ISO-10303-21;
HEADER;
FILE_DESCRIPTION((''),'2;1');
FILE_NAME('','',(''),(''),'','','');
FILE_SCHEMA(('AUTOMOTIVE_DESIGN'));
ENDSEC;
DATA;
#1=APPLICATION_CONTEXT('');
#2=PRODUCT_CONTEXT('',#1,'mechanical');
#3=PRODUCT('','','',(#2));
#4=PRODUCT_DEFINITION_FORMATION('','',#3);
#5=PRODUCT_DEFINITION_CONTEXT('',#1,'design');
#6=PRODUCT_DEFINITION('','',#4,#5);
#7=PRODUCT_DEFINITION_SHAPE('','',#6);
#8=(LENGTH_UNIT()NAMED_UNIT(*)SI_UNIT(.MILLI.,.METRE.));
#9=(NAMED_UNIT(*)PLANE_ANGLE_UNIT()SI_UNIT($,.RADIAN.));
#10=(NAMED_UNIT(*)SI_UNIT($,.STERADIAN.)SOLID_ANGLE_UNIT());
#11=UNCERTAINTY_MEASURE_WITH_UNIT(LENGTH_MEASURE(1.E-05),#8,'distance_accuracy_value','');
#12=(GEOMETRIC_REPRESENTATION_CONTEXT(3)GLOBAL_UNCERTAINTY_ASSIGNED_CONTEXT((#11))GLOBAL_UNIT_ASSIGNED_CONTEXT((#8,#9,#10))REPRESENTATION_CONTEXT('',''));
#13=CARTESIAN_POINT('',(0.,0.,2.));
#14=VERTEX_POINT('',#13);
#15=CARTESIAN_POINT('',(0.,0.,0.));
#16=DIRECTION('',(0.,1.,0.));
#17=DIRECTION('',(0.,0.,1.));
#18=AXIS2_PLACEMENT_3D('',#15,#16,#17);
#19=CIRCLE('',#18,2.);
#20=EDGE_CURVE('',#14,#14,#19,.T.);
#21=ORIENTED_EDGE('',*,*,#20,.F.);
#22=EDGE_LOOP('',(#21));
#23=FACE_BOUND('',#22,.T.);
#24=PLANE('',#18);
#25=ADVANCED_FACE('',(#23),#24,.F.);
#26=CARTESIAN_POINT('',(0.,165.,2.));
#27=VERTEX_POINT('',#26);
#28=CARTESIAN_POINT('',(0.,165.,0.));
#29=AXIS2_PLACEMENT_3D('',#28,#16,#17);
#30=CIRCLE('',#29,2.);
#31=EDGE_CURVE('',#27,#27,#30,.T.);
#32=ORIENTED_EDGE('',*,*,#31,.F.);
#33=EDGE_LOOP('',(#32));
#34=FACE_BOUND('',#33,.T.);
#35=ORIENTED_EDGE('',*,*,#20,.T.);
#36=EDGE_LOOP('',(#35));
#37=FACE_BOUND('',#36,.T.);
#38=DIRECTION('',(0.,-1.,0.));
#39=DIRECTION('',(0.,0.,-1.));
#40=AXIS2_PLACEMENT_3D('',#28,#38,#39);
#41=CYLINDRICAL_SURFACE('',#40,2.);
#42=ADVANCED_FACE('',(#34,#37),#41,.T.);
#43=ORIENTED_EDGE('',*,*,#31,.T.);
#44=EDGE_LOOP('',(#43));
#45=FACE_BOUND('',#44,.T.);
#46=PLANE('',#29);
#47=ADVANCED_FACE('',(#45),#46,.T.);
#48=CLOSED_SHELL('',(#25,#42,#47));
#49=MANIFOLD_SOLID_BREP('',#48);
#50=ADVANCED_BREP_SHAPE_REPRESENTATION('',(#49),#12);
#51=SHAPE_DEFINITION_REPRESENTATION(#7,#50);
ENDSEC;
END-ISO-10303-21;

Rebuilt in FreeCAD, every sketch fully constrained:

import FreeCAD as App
import Part
import Sketcher
from FreeCAD import Vector

doc = App.newDocument("Part")
body = doc.addObject("PartDesign::Body", "Body")

sketch1 = body.newObject("Sketcher::SketchObject", "Sketch")
sketch1.AttachmentSupport = (doc.getObject("XZ_Plane"), [""])
sketch1.MapMode = "FlatFace"
sketch1.addGeometry(Part.Circle(Vector(0, 0, 0), Vector(0, 0, 1), 2), False)
sketch1.addConstraint([
    Sketcher.Constraint("Coincident", 0, 3, -1, 1),
    Sketcher.Constraint("Diameter", 0, 4.0),
])
pad1 = body.newObject("PartDesign::Pad", "Pad")
pad1.Profile = sketch1
pad1.Length = 165
pad1.Reversed = True

doc.recompute()
